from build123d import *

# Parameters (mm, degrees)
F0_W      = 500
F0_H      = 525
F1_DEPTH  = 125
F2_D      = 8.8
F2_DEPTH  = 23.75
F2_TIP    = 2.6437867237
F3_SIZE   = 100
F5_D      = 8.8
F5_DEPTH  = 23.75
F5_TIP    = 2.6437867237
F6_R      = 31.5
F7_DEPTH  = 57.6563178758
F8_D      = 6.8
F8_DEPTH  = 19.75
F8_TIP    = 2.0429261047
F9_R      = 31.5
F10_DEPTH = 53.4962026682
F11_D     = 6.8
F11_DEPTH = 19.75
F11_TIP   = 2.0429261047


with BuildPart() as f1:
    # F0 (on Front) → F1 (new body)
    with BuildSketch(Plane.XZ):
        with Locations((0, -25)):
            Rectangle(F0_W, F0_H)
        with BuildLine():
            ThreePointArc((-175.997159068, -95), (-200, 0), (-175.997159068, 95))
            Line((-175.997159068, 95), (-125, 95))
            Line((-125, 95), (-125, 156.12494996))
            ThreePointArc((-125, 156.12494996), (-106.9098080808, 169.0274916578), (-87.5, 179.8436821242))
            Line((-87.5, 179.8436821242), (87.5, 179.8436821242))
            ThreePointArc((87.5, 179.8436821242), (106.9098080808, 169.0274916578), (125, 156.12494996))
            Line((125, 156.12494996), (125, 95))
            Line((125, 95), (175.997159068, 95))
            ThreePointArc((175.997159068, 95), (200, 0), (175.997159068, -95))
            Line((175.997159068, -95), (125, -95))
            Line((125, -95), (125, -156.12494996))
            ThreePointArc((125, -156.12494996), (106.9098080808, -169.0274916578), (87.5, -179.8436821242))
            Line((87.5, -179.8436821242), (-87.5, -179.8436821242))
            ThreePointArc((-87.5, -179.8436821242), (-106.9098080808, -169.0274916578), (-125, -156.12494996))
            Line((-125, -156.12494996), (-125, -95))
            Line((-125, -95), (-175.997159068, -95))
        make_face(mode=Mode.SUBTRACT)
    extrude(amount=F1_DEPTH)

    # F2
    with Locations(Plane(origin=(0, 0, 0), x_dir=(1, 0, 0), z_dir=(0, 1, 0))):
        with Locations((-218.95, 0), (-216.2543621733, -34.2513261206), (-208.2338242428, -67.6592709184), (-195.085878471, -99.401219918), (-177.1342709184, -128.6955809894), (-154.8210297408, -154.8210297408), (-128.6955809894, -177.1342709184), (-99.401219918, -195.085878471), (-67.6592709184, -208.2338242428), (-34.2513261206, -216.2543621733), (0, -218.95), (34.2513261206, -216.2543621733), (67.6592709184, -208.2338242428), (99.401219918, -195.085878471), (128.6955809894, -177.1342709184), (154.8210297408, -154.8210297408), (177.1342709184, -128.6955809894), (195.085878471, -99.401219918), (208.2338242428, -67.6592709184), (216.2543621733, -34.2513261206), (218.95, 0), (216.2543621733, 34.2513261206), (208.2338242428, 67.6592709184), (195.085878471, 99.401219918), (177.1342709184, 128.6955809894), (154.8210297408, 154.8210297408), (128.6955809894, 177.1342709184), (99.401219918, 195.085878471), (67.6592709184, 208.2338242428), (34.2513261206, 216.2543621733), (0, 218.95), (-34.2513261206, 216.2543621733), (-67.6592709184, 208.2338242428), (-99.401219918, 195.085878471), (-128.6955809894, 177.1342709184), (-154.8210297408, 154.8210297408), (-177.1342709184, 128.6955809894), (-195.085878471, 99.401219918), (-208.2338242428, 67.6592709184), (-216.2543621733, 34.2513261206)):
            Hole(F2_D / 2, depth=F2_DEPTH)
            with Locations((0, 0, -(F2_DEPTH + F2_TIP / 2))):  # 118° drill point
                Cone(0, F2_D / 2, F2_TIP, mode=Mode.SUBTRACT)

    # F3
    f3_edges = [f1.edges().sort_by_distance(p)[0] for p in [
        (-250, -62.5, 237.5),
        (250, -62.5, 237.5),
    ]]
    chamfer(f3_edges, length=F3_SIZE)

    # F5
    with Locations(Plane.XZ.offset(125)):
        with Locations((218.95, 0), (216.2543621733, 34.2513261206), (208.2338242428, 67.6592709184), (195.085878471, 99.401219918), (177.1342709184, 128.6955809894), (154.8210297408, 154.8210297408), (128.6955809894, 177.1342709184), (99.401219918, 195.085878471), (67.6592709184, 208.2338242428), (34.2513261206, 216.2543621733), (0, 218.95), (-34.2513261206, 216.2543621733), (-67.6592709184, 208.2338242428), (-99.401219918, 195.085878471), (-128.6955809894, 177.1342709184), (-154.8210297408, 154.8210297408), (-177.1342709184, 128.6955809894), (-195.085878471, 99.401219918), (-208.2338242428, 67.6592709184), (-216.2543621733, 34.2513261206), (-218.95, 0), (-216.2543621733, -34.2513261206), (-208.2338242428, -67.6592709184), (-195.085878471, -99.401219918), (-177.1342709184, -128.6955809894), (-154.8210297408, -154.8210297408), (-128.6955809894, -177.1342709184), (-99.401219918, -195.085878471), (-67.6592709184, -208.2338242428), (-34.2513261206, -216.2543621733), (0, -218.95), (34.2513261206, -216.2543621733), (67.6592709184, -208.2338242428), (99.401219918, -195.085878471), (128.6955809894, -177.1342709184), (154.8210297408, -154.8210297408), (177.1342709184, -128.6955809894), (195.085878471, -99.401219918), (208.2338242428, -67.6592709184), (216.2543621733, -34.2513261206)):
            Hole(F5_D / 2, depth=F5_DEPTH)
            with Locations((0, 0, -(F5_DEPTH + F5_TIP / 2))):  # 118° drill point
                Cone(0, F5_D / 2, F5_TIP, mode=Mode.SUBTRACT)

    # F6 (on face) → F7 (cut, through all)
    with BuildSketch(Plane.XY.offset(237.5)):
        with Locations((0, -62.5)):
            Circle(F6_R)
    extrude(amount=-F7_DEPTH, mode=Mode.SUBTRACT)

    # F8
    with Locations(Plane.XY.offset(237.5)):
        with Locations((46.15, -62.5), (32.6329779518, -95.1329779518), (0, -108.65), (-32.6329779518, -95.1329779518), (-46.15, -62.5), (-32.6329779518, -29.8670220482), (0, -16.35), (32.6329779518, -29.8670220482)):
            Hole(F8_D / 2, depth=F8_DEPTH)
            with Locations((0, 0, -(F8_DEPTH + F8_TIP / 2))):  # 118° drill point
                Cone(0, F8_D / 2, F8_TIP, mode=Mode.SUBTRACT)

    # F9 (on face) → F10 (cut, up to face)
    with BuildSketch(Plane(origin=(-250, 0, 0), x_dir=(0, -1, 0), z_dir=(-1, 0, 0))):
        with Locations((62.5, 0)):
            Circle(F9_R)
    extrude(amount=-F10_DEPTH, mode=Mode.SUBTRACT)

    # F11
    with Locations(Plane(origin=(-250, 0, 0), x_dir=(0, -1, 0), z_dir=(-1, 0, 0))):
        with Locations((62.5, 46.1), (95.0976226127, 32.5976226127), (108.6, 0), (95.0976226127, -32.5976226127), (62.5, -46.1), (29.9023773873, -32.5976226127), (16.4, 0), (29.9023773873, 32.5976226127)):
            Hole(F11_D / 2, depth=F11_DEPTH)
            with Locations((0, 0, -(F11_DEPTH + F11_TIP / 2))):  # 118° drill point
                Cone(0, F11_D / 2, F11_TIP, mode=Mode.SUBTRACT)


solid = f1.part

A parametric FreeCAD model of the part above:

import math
import FreeCAD as App
import Part
import Sketcher
from FreeCAD import Vector


def edges_at(feature, points):
    """Names of the edges that pass closest to the given points."""
    edges = feature.Shape.Edges
    near = lambda p: min(range(len(edges)), key=lambda i: edges[i].distToShape(Part.Vertex(*p))[0])
    return sorted({f"Edge{near(p) + 1}" for p in points})


def add_polygon(sketch, points):
    """Adds a closed chain of lines whose ends are joined by coincident constraints."""
    first, n = sketch.GeometryCount, len(points)
    for a, b in zip(points, points[1:] + points[:1]):
        sketch.addGeometry(Part.LineSegment(App.Vector(*a, 0), App.Vector(*b, 0)), False)
    for i in range(n):
        sketch.addConstraint(Sketcher.Constraint("Coincident", first + i, 2, first + (i + 1) % n, 1))

doc = App.newDocument("Part")
body = doc.addObject("PartDesign::Body", "Body")

# Sketch on XZ plane
sketch1 = body.newObject("Sketcher::SketchObject", "Sketch")
sketch1.AttachmentSupport = (doc.getObject("XZ_Plane"), [""])
sketch1.MapMode = "FlatFace"
add_polygon(sketch1, [(-250, 238), (-250, -288), (250, -288), (250, 238)])  # lines 0-3
sketch1.addGeometry(Part.LineSegment(Vector(-125, -95, 0), Vector(-176, -95, 0)), False)  # 4
sketch1.addGeometry(Part.ArcOfCircle(Part.Circle(Vector(0, 0, 0), Vector(0, 0, 1), 200), math.radians(152), math.radians(208)), False)  # 5
sketch1.addGeometry(Part.LineSegment(Vector(-176, 95, 0), Vector(-125, 95, 0)), False)  # 6
sketch1.addGeometry(Part.LineSegment(Vector(-125, 95, 0), Vector(-125, 156, 0)), False)  # 7
sketch1.addGeometry(Part.ArcOfCircle(Part.Circle(Vector(0, 0, 0), Vector(0, 0, 1), 200), math.radians(115.94), math.radians(128.68)), False)  # 8
sketch1.addGeometry(Part.LineSegment(Vector(-88, 180, 0), Vector(88, 180, 0)), False)  # 9
sketch1.addGeometry(Part.ArcOfCircle(Part.Circle(Vector(0, 0, 0), Vector(0, 0, 1), 200), math.radians(51.32), math.radians(64.06)), False)  # 10
sketch1.addGeometry(Part.LineSegment(Vector(125, 156, 0), Vector(125, 95, 0)), False)  # 11
sketch1.addGeometry(Part.LineSegment(Vector(125, 95, 0), Vector(176, 95, 0)), False)  # 12
sketch1.addGeometry(Part.ArcOfCircle(Part.Circle(Vector(0, 0, 0), Vector(0, 0, 1), 200), math.radians(-28), math.radians(28)), False)  # 13
sketch1.addGeometry(Part.LineSegment(Vector(176, -95, 0), Vector(125, -95, 0)), False)  # 14
sketch1.addGeometry(Part.LineSegment(Vector(125, -95, 0), Vector(125, -156, 0)), False)  # 15
sketch1.addGeometry(Part.ArcOfCircle(Part.Circle(Vector(0, 0, 0), Vector(0, 0, 1), 200), math.radians(-64.06), math.radians(-51.32)), False)  # 16
sketch1.addGeometry(Part.LineSegment(Vector(88, -180, 0), Vector(-88, -180, 0)), False)  # 17
sketch1.addGeometry(Part.ArcOfCircle(Part.Circle(Vector(0, 0, 0), Vector(0, 0, 1), 200), math.radians(-128.68), math.radians(-115.94)), False)  # 18
sketch1.addGeometry(Part.LineSegment(Vector(-125, -156, 0), Vector(-125, -95, 0)), False)  # 19
sketch1.addConstraint([
    Sketcher.Constraint("Coincident", 4, 2, 5, 2),
    Sketcher.Constraint("Coincident", 5, 1, 6, 1),
    Sketcher.Constraint("Coincident", 6, 2, 7, 1),
    Sketcher.Constraint("Coincident", 7, 2, 8, 2),
    Sketcher.Constraint("Coincident", 8, 1, 9, 1),
    Sketcher.Constraint("Coincident", 9, 2, 10, 2),
    Sketcher.Constraint("Coincident", 10, 1, 11, 1),
    Sketcher.Constraint("Coincident", 11, 2, 12, 1),
    Sketcher.Constraint("Coincident", 12, 2, 13, 2),
    Sketcher.Constraint("Coincident", 13, 1, 14, 1),
    Sketcher.Constraint("Coincident", 14, 2, 15, 1),
    Sketcher.Constraint("Coincident", 15, 2, 16, 2),
    Sketcher.Constraint("Coincident", 16, 1, 17, 1),
    Sketcher.Constraint("Coincident", 17, 2, 18, 2),
    Sketcher.Constraint("Coincident", 18, 1, 19, 1),
    Sketcher.Constraint("Coincident", 19, 2, 4, 1),
    Sketcher.Constraint("Vertical", 0),
    Sketcher.Constraint("Horizontal", 1),
    Sketcher.Constraint("Vertical", 2),
    Sketcher.Constraint("Horizontal", 3),
    Sketcher.Constraint("Horizontal", 4),
    Sketcher.Constraint("Horizontal", 6),
    Sketcher.Constraint("Vertical", 7),
    Sketcher.Constraint("Horizontal", 9),
    Sketcher.Constraint("Vertical", 11),
    Sketcher.Constraint("Horizontal", 12),
    Sketcher.Constraint("Horizontal", 14),
    Sketcher.Constraint("Vertical", 15),
    Sketcher.Constraint("Horizontal", 17),
    Sketcher.Constraint("Vertical", 19),
    Sketcher.Constraint("Coincident", 5, 3, -1, 1),
    Sketcher.Constraint("Coincident", 8, 3, -1, 1),
    Sketcher.Constraint("Coincident", 10, 3, -1, 1),
    Sketcher.Constraint("Coincident", 13, 3, -1, 1),
    Sketcher.Constraint("Coincident", 16, 3, -1, 1),
    Sketcher.Constraint("Coincident", 18, 3, -1, 1),
    Sketcher.Constraint("Equal", 5, 8),
    Sketcher.Constraint("Equal", 8, 10),
    Sketcher.Constraint("Equal", 10, 13),
    Sketcher.Constraint("Equal", 13, 16),
    Sketcher.Constraint("Equal", 16, 18),
    Sketcher.Constraint("Symmetric", 6, 2, 14, 2, -1, 1),
    Sketcher.Constraint("Symmetric", 11, 2, 19, 2, -1, 1),
    Sketcher.Constraint("Symmetric", 6, 2, 11, 2, -2),
    Sketcher.Constraint("Vertical", 9, 2, 16, 1),
    Sketcher.Constraint("Radius", 5, 200.0),
    Sketcher.Constraint("DistanceX", 1, 1, 1, 2, 500.0),
    Sketcher.Constraint("DistanceX", 9, 1, 9, 2, 175.0),
    Sketcher.Constraint("DistanceY", 0, 2, 0, 1, 525.0),
    Sketcher.Constraint("DistanceX", 0, 2, -1, 1, 250.0),
    Sketcher.Constraint("DistanceY", 4, 2, -1, 1, 95.0),
    Sketcher.Constraint("DistanceX", 6, 2, -1, 1, 125.0),
    Sketcher.Constraint("DistanceY", 0, 2, -1, 1, 287.5),
])
pad1 = body.newObject("PartDesign::Pad", "Pad")
pad1.Profile = sketch1
pad1.Length = 125

# Sketch on XZ plane
sketch2 = body.newObject("Sketcher::SketchObject", "Sketch001")
sketch2.AttachmentSupport = (doc.getObject("XZ_Plane"), [""])
sketch2.MapMode = "FlatFace"
sketch2.addGeometry([
    Part.Circle(Vector(-218.9, 0, 0), Vector(0, 0, 1), 4.4),  # 0
    Part.Circle(Vector(-216.3, 34.3, 0), Vector(0, 0, 1), 4.4),  # 1
    Part.Circle(Vector(-208.2, 67.7, 0), Vector(0, 0, 1), 4.4),  # 2
    Part.Circle(Vector(-195.1, 99.4, 0), Vector(0, 0, 1), 4.4),  # 3
    Part.Circle(Vector(-177.1, 128.7, 0), Vector(0, 0, 1), 4.4),  # 4
    Part.Circle(Vector(-154.8, 154.8, 0), Vector(0, 0, 1), 4.4),  # 5
    Part.Circle(Vector(-128.7, 177.1, 0), Vector(0, 0, 1), 4.4),  # 6
    Part.Circle(Vector(-99.4, 195.1, 0), Vector(0, 0, 1), 4.4),  # 7
    Part.Circle(Vector(-67.7, 208.2, 0), Vector(0, 0, 1), 4.4),  # 8
    Part.Circle(Vector(-34.3, 216.3, 0), Vector(0, 0, 1), 4.4),  # 9
    Part.Circle(Vector(0, 218.9, 0), Vector(0, 0, 1), 4.4),  # 10
    Part.Circle(Vector(34.3, 216.3, 0), Vector(0, 0, 1), 4.4),  # 11
    Part.Circle(Vector(67.7, 208.2, 0), Vector(0, 0, 1), 4.4),  # 12
    Part.Circle(Vector(99.4, 195.1, 0), Vector(0, 0, 1), 4.4),  # 13
    Part.Circle(Vector(128.7, 177.1, 0), Vector(0, 0, 1), 4.4),  # 14
    Part.Circle(Vector(154.8, 154.8, 0), Vector(0, 0, 1), 4.4),  # 15
    Part.Circle(Vector(177.1, 128.7, 0), Vector(0, 0, 1), 4.4),  # 16
    Part.Circle(Vector(195.1, 99.4, 0), Vector(0, 0, 1), 4.4),  # 17
    Part.Circle(Vector(208.2, 67.7, 0), Vector(0, 0, 1), 4.4),  # 18
    Part.Circle(Vector(216.3, 34.3, 0), Vector(0, 0, 1), 4.4),  # 19
    Part.Circle(Vector(218.9, 0, 0), Vector(0, 0, 1), 4.4),  # 20
    Part.Circle(Vector(216.3, -34.3, 0), Vector(0, 0, 1), 4.4),  # 21
    Part.Circle(Vector(208.2, -67.7, 0), Vector(0, 0, 1), 4.4),  # 22
    Part.Circle(Vector(195.1, -99.4, 0), Vector(0, 0, 1), 4.4),  # 23
    Part.Circle(Vector(177.1, -128.7, 0), Vector(0, 0, 1), 4.4),  # 24
    Part.Circle(Vector(154.8, -154.8, 0), Vector(0, 0, 1), 4.4),  # 25
    Part.Circle(Vector(128.7, -177.1, 0), Vector(0, 0, 1), 4.4),  # 26
    Part.Circle(Vector(99.4, -195.1, 0), Vector(0, 0, 1), 4.4),  # 27
    Part.Circle(Vector(67.7, -208.2, 0), Vector(0, 0, 1), 4.4),  # 28
    Part.Circle(Vector(34.3, -216.3, 0), Vector(0, 0, 1), 4.4),  # 29
    Part.Circle(Vector(0, -218.9, 0), Vector(0, 0, 1), 4.4),  # 30
    Part.Circle(Vector(-34.3, -216.3, 0), Vector(0, 0, 1), 4.4),  # 31
    Part.Circle(Vector(-67.7, -208.2, 0), Vector(0, 0, 1), 4.4),  # 32
    Part.Circle(Vector(-99.4, -195.1, 0), Vector(0, 0, 1), 4.4),  # 33
    Part.Circle(Vector(-128.7, -177.1, 0), Vector(0, 0, 1), 4.4),  # 34
    Part.Circle(Vector(-154.8, -154.8, 0), Vector(0, 0, 1), 4.4),  # 35
    Part.Circle(Vector(-177.1, -128.7, 0), Vector(0, 0, 1), 4.4),  # 36
    Part.Circle(Vector(-195.1, -99.4, 0), Vector(0, 0, 1), 4.4),  # 37
    Part.Circle(Vector(-208.2, -67.7, 0), Vector(0, 0, 1), 4.4),  # 38
    Part.Circle(Vector(-216.3, -34.3, 0), Vector(0, 0, 1), 4.4),  # 39
], False)
sketch2.addConstraint([
    Sketcher.Constraint("Equal", 0, 1),
    Sketcher.Constraint("Equal", 1, 2),
    Sketcher.Constraint("Equal", 2, 3),
    Sketcher.Constraint("Equal", 3, 4),
    Sketcher.Constraint("Equal", 4, 5),
    Sketcher.Constraint("Equal", 5, 6),
    Sketcher.Constraint("Equal", 6, 7),
    Sketcher.Constraint("Equal", 7, 8),
    Sketcher.Constraint("Equal", 8, 9),
    Sketcher.Constraint("Equal", 9, 10),
    Sketcher.Constraint("Equal", 10, 11),
    Sketcher.Constraint("Equal", 11, 12),
    Sketcher.Constraint("Equal", 12, 13),
    Sketcher.Constraint("Equal", 13, 14),
    Sketcher.Constraint("Equal", 14, 15),
    Sketcher.Constraint("Equal", 15, 16),
    Sketcher.Constraint("Equal", 16, 17),
    Sketcher.Constraint("Equal", 17, 18),
    Sketcher.Constraint("Equal", 18, 19),
    Sketcher.Constraint("Equal", 19, 20),
    Sketcher.Constraint("Equal", 20, 21),
    Sketcher.Constraint("Equal", 21, 22),
    Sketcher.Constraint("Equal", 22, 23),
    Sketcher.Constraint("Equal", 23, 24),
    Sketcher.Constraint("Equal", 24, 25),
    Sketcher.Constraint("Equal", 25, 26),
    Sketcher.Constraint("Equal", 26, 27),
    Sketcher.Constraint("Equal", 27, 28),
    Sketcher.Constraint("Equal", 28, 29),
    Sketcher.Constraint("Equal", 29, 30),
    Sketcher.Constraint("Equal", 30, 31),
    Sketcher.Constraint("Equal", 31, 32),
    Sketcher.Constraint("Equal", 32, 33),
    Sketcher.Constraint("Equal", 33, 34),
    Sketcher.Constraint("Equal", 34, 35),
    Sketcher.Constraint("Equal", 35, 36),
    Sketcher.Constraint("Equal", 36, 37),
    Sketcher.Constraint("Equal", 37, 38),
    Sketcher.Constraint("Equal", 38, 39),
    Sketcher.Constraint("Symmetric", 0, 3, 20, 3, -1, 1),
    Sketcher.Constraint("Symmetric", 1, 3, 21, 3, -1, 1),
    Sketcher.Constraint("Symmetric", 2, 3, 22, 3, -1, 1),
    Sketcher.Constraint("Symmetric", 3, 3, 23, 3, -1, 1),
    Sketcher.Constraint("Symmetric", 4, 3, 24, 3, -1, 1),
    Sketcher.Constraint("Symmetric", 5, 3, 25, 3, -1, 1),
    Sketcher.Constraint("Symmetric", 6, 3, 26, 3, -1, 1),
    Sketcher.Constraint("Symmetric", 7, 3, 27, 3, -1, 1),
    Sketcher.Constraint("Symmetric", 8, 3, 28, 3, -1, 1),
    Sketcher.Constraint("Symmetric", 9, 3, 29, 3, -1, 1),
    Sketcher.Constraint("Symmetric", 10, 3, 30, 3, -1, 1),
    Sketcher.Constraint("Symmetric", 11, 3, 31, 3, -1, 1),
    Sketcher.Constraint("Symmetric", 12, 3, 32, 3, -1, 1),
    Sketcher.Constraint("Symmetric", 13, 3, 33, 3, -1, 1),
    Sketcher.Constraint("Symmetric", 14, 3, 34, 3, -1, 1),
    Sketcher.Constraint("Symmetric", 15, 3, 35, 3, -1, 1),
    Sketcher.Constraint("Symmetric", 16, 3, 36, 3, -1, 1),
    Sketcher.Constraint("Symmetric", 17, 3, 37, 3, -1, 1),
    Sketcher.Constraint("Symmetric", 18, 3, 38, 3, -1, 1),
    Sketcher.Constraint("Symmetric", 19, 3, 39, 3, -1, 1),
    Sketcher.Constraint("Symmetric", 9, 3, 11, 3, -2),
    Sketcher.Constraint("Symmetric", 8, 3, 12, 3, -2),
    Sketcher.Constraint("Symmetric", 7, 3, 13, 3, -2),
    Sketcher.Constraint("Symmetric", 6, 3, 14, 3, -2),
    Sketcher.Constraint("Symmetric", 5, 3, 15, 3, -2),
    Sketcher.Constraint("Symmetric", 4, 3, 16, 3, -2),
    Sketcher.Constraint("Symmetric", 3, 3, 17, 3, -2),
    Sketcher.Constraint("Symmetric", 2, 3, 18, 3, -2),
    Sketcher.Constraint("Symmetric", 1, 3, 19, 3, -2),
    Sketcher.Constraint("PointOnObject", 0, 3, -1),
    Sketcher.Constraint("PointOnObject", 10, 3, -2),
    Sketcher.Constraint("Diameter", 0, 8.8),
    Sketcher.Constraint("DistanceX", 0, 3, -1, 1, 218.95),
    Sketcher.Constraint("DistanceY", -1, 1, 10, 3, 218.95),
    Sketcher.Constraint("DistanceY", 2, 3, 6, 3, 109.475),
    Sketcher.Constraint("DistanceX", 4, 3, 8, 3, 109.475),
    Sketcher.Constraint("DistanceY", -1, 1, 2, 3, 67.659271),
    Sketcher.Constraint("DistanceX", 3, 3, -1, 1, 195.085878),
    Sketcher.Constraint("DistanceY", -1, 1, 3, 3, 99.40122),
    Sketcher.Constraint("DistanceX", 4, 3, -1, 1, 177.134271),
    Sketcher.Constraint("DistanceY", -1, 1, 4, 3, 128.695581),
    Sketcher.Constraint("DistanceX", 5, 3, -1, 1, 154.82103),
    Sketcher.Constraint("DistanceY", -1, 1, 5, 3, 154.82103),
    Sketcher.Constraint("DistanceX", 6, 3, -1, 1, 128.695581),
    Sketcher.Constraint("DistanceX", 7, 3, -1, 1, 99.40122),
    Sketcher.Constraint("DistanceY", -1, 1, 7, 3, 195.085878),
    Sketcher.Constraint("DistanceX", 1, 3, 4, 3, 39.120091),
    Sketcher.Constraint("DistanceY", 6, 3, 9, 3, 39.120091),
    Sketcher.Constraint("DistanceY", -1, 1, 1, 3, 34.251326),
    Sketcher.Constraint("DistanceX", 2, 3, -1, 1, 208.233824),
    Sketcher.Constraint("DistanceY", -1, 1, 8, 3, 208.233824),
    Sketcher.Constraint("DistanceX", 9, 3, -1, 1, 34.251326),
])
doc.recompute()
hole = body.newObject("PartDesign::Hole", "Hole")
hole.Profile = sketch2
hole.ThreadType = "None"
hole.Diameter = 8.8
hole.DepthType = "Dimension"
hole.Depth = 23.75
hole.DrillPoint = "Angled"
hole.DrillPointAngle = 118
hole.Reversed = True
doc.recompute()

chamfer = body.newObject("PartDesign::Chamfer", "Chamfer")
chamfer.Base = (hole, edges_at(hole, [(-250, -62.5, 237.5), (250, -62.5, 237.5)]))
chamfer.Size = 100

# Sketch on XZ plane
sketch3 = body.newObject("Sketcher::SketchObject", "Sketch002")
sketch3.AttachmentSupport = (doc.getObject("XZ_Plane"), [""])
sketch3.MapMode = "FlatFace"
sketch3.AttachmentOffset = App.Placement(Vector(0, 0, 125), App.Rotation())
sketch3.addGeometry([
    Part.Circle(Vector(218.9, 0, 0), Vector(0, 0, 1), 4.4),  # 0
    Part.Circle(Vector(216.3, 34.3, 0), Vector(0, 0, 1), 4.4),  # 1
    Part.Circle(Vector(208.2, 67.7, 0), Vector(0, 0, 1), 4.4),  # 2
    Part.Circle(Vector(195.1, 99.4, 0), Vector(0, 0, 1), 4.4),  # 3
    Part.Circle(Vector(177.1, 128.7, 0), Vector(0, 0, 1), 4.4),  # 4
    Part.Circle(Vector(154.8, 154.8, 0), Vector(0, 0, 1), 4.4),  # 5
    Part.Circle(Vector(128.7, 177.1, 0), Vector(0, 0, 1), 4.4),  # 6
    Part.Circle(Vector(99.4, 195.1, 0), Vector(0, 0, 1), 4.4),  # 7
    Part.Circle(Vector(67.7, 208.2, 0), Vector(0, 0, 1), 4.4),  # 8
    Part.Circle(Vector(34.3, 216.3, 0), Vector(0, 0, 1), 4.4),  # 9
    Part.Circle(Vector(0, 218.9, 0), Vector(0, 0, 1), 4.4),  # 10
    Part.Circle(Vector(-34.3, 216.3, 0), Vector(0, 0, 1), 4.4),  # 11
    Part.Circle(Vector(-67.7, 208.2, 0), Vector(0, 0, 1), 4.4),  # 12
    Part.Circle(Vector(-99.4, 195.1, 0), Vector(0, 0, 1), 4.4),  # 13
    Part.Circle(Vector(-128.7, 177.1, 0), Vector(0, 0, 1), 4.4),  # 14
    Part.Circle(Vector(-154.8, 154.8, 0), Vector(0, 0, 1), 4.4),  # 15
    Part.Circle(Vector(-177.1, 128.7, 0), Vector(0, 0, 1), 4.4),  # 16
    Part.Circle(Vector(-195.1, 99.4, 0), Vector(0, 0, 1), 4.4),  # 17
    Part.Circle(Vector(-208.2, 67.7, 0), Vector(0, 0, 1), 4.4),  # 18
    Part.Circle(Vector(-216.3, 34.3, 0), Vector(0, 0, 1), 4.4),  # 19
    Part.Circle(Vector(-218.9, 0, 0), Vector(0, 0, 1), 4.4),  # 20
    Part.Circle(Vector(-216.3, -34.3, 0), Vector(0, 0, 1), 4.4),  # 21
    Part.Circle(Vector(-208.2, -67.7, 0), Vector(0, 0, 1), 4.4),  # 22
    Part.Circle(Vector(-195.1, -99.4, 0), Vector(0, 0, 1), 4.4),  # 23
    Part.Circle(Vector(-177.1, -128.7, 0), Vector(0, 0, 1), 4.4),  # 24
    Part.Circle(Vector(-154.8, -154.8, 0), Vector(0, 0, 1), 4.4),  # 25
    Part.Circle(Vector(-128.7, -177.1, 0), Vector(0, 0, 1), 4.4),  # 26
    Part.Circle(Vector(-99.4, -195.1, 0), Vector(0, 0, 1), 4.4),  # 27
    Part.Circle(Vector(-67.7, -208.2, 0), Vector(0, 0, 1), 4.4),  # 28
    Part.Circle(Vector(-34.3, -216.3, 0), Vector(0, 0, 1), 4.4),  # 29
    Part.Circle(Vector(0, -218.9, 0), Vector(0, 0, 1), 4.4),  # 30
    Part.Circle(Vector(34.3, -216.3, 0), Vector(0, 0, 1), 4.4),  # 31
    Part.Circle(Vector(67.7, -208.2, 0), Vector(0, 0, 1), 4.4),  # 32
    Part.Circle(Vector(99.4, -195.1, 0), Vector(0, 0, 1), 4.4),  # 33
    Part.Circle(Vector(128.7, -177.1, 0), Vector(0, 0, 1), 4.4),  # 34
    Part.Circle(Vector(154.8, -154.8, 0), Vector(0, 0, 1), 4.4),  # 35
    Part.Circle(Vector(177.1, -128.7, 0), Vector(0, 0, 1), 4.4),  # 36
    Part.Circle(Vector(195.1, -99.4, 0), Vector(0, 0, 1), 4.4),  # 37
    Part.Circle(Vector(208.2, -67.7, 0), Vector(0, 0, 1), 4.4),  # 38
    Part.Circle(Vector(216.3, -34.3, 0), Vector(0, 0, 1), 4.4),  # 39
], False)
sketch3.addConstraint([
    Sketcher.Constraint("Equal", 0, 1),
    Sketcher.Constraint("Equal", 1, 2),
    Sketcher.Constraint("Equal", 2, 3),
    Sketcher.Constraint("Equal", 3, 4),
    Sketcher.Constraint("Equal", 4, 5),
    Sketcher.Constraint("Equal", 5, 6),
    Sketcher.Constraint("Equal", 6, 7),
    Sketcher.Constraint("Equal", 7, 8),
    Sketcher.Constraint("Equal", 8, 9),
    Sketcher.Constraint("Equal", 9, 10),
    Sketcher.Constraint("Equal", 10, 11),
    Sketcher.Constraint("Equal", 11, 12),
    Sketcher.Constraint("Equal", 12, 13),
    Sketcher.Constraint("Equal", 13, 14),
    Sketcher.Constraint("Equal", 14, 15),
    Sketcher.Constraint("Equal", 15, 16),
    Sketcher.Constraint("Equal", 16, 17),
    Sketcher.Constraint("Equal", 17, 18),
    Sketcher.Constraint("Equal", 18, 19),
    Sketcher.Constraint("Equal", 19, 20),
    Sketcher.Constraint("Equal", 20, 21),
    Sketcher.Constraint("Equal", 21, 22),
    Sketcher.Constraint("Equal", 22, 23),
    Sketcher.Constraint("Equal", 23, 24),
    Sketcher.Constraint("Equal", 24, 25),
    Sketcher.Constraint("Equal", 25, 26),
    Sketcher.Constraint("Equal", 26, 27),
    Sketcher.Constraint("Equal", 27, 28),
    Sketcher.Constraint("Equal", 28, 29),
    Sketcher.Constraint("Equal", 29, 30),
    Sketcher.Constraint("Equal", 30, 31),
    Sketcher.Constraint("Equal", 31, 32),
    Sketcher.Constraint("Equal", 32, 33),
    Sketcher.Constraint("Equal", 33, 34),
    Sketcher.Constraint("Equal", 34, 35),
    Sketcher.Constraint("Equal", 35, 36),
    Sketcher.Constraint("Equal", 36, 37),
    Sketcher.Constraint("Equal", 37, 38),
    Sketcher.Constraint("Equal", 38, 39),
    Sketcher.Constraint("Symmetric", 0, 3, 20, 3, -1, 1),
    Sketcher.Constraint("Symmetric", 1, 3, 21, 3, -1, 1),
    Sketcher.Constraint("Symmetric", 2, 3, 22, 3, -1, 1),
    Sketcher.Constraint("Symmetric", 3, 3, 23, 3, -1, 1),
    Sketcher.Constraint("Symmetric", 4, 3, 24, 3, -1, 1),
    Sketcher.Constraint("Symmetric", 5, 3, 25, 3, -1, 1),
    Sketcher.Constraint("Symmetric", 6, 3, 26, 3, -1, 1),
    Sketcher.Constraint("Symmetric", 7, 3, 27, 3, -1, 1),
    Sketcher.Constraint("Symmetric", 8, 3, 28, 3, -1, 1),
    Sketcher.Constraint("Symmetric", 9, 3, 29, 3, -1, 1),
    Sketcher.Constraint("Symmetric", 10, 3, 30, 3, -1, 1),
    Sketcher.Constraint("Symmetric", 11, 3, 31, 3, -1, 1),
    Sketcher.Constraint("Symmetric", 12, 3, 32, 3, -1, 1),
    Sketcher.Constraint("Symmetric", 13, 3, 33, 3, -1, 1),
    Sketcher.Constraint("Symmetric", 14, 3, 34, 3, -1, 1),
    Sketcher.Constraint("Symmetric", 15, 3, 35, 3, -1, 1),
    Sketcher.Constraint("Symmetric", 16, 3, 36, 3, -1, 1),
    Sketcher.Constraint("Symmetric", 17, 3, 37, 3, -1, 1),
    Sketcher.Constraint("Symmetric", 18, 3, 38, 3, -1, 1),
    Sketcher.Constraint("Symmetric", 19, 3, 39, 3, -1, 1),
    Sketcher.Constraint("Symmetric", 9, 3, 11, 3, -2),
    Sketcher.Constraint("Symmetric", 8, 3, 12, 3, -2),
    Sketcher.Constraint("Symmetric", 7, 3, 13, 3, -2),
    Sketcher.Constraint("Symmetric", 6, 3, 14, 3, -2),
    Sketcher.Constraint("Symmetric", 5, 3, 15, 3, -2),
    Sketcher.Constraint("Symmetric", 4, 3, 16, 3, -2),
    Sketcher.Constraint("Symmetric", 3, 3, 17, 3, -2),
    Sketcher.Constraint("Symmetric", 2, 3, 18, 3, -2),
    Sketcher.Constraint("Symmetric", 1, 3, 19, 3, -2),
    Sketcher.Constraint("PointOnObject", 0, 3, -1),
    Sketcher.Constraint("PointOnObject", 10, 3, -2),
    Sketcher.Constraint("Diameter", 0, 8.8),
    Sketcher.Constraint("DistanceX", -1, 1, 0, 3, 218.95),
    Sketcher.Constraint("DistanceY", -1, 1, 10, 3, 218.95),
    Sketcher.Constraint("DistanceY", 2, 3, 6, 3, 109.475),
    Sketcher.Constraint("DistanceX", 8, 3, 4, 3, 109.475),
    Sketcher.Constraint("DistanceY", -1, 1, 2, 3, 67.659271),
    Sketcher.Constraint("DistanceX", -1, 1, 3, 3, 195.085878),
    Sketcher.Constraint("DistanceY", -1, 1, 3, 3, 99.40122),
    Sketcher.Constraint("DistanceX", -1, 1, 4, 3, 177.134271),
    Sketcher.Constraint("DistanceY", -1, 1, 4, 3, 128.695581),
    Sketcher.Constraint("DistanceX", -1, 1, 5, 3, 154.82103),
    Sketcher.Constraint("DistanceY", -1, 1, 5, 3, 154.82103),
    Sketcher.Constraint("DistanceX", -1, 1, 6, 3, 128.695581),
    Sketcher.Constraint("DistanceX", -1, 1, 7, 3, 99.40122),
    Sketcher.Constraint("DistanceY", -1, 1, 7, 3, 195.085878),
    Sketcher.Constraint("DistanceX", 4, 3, 1, 3, 39.120091),
    Sketcher.Constraint("DistanceY", 6, 3, 9, 3, 39.120091),
    Sketcher.Constraint("DistanceY", -1, 1, 1, 3, 34.251326),
    Sketcher.Constraint("DistanceX", -1, 1, 2, 3, 208.233824),
    Sketcher.Constraint("DistanceY", -1, 1, 8, 3, 208.233824),
    Sketcher.Constraint("DistanceX", -1, 1, 9, 3, 34.251326),
])
doc.recompute()
hole2 = body.newObject("PartDesign::Hole", "Hole001")
hole2.Profile = sketch3
hole2.ThreadType = "None"
hole2.Diameter = 8.8
hole2.DepthType = "Dimension"
hole2.Depth = 23.75
hole2.DrillPoint = "Angled"
hole2.DrillPointAngle = 118

# Sketch on XY plane
sketch4 = body.newObject("Sketcher::SketchObject", "Sketch003")
sketch4.AttachmentSupport = (doc.getObject("XY_Plane"), [""])
sketch4.MapMode = "FlatFace"
sketch4.AttachmentOffset = App.Placement(Vector(0, 0, 237.5), App.Rotation())
sketch4.addGeometry(Part.Circle(Vector(0, -62, 0), Vector(0, 0, 1), 32), False)
sketch4.addConstraint([
    Sketcher.Constraint("PointOnObject", 0, 3, -2),
    Sketcher.Constraint("Diameter", 0, 63.0),
    Sketcher.Constraint("DistanceY", 0, 3, -1, 1, 62.5),
])
pocket1 = body.newObject("PartDesign::Pocket", "Pocket")
pocket1.Profile = sketch4
pocket1.Length = 57.656318

# Sketch on XY plane
sketch5 = body.newObject("Sketcher::SketchObject", "Sketch004")
sketch5.AttachmentSupport = (doc.getObject("XY_Plane"), [""])
sketch5.MapMode = "FlatFace"
sketch5.AttachmentOffset = App.Placement(Vector(0, 0, 237.5), App.Rotation())
sketch5.addGeometry([
    Part.Circle(Vector(46.1, -62.5, 0), Vector(0, 0, 1), 3.4),  # 0
    Part.Circle(Vector(32.6, -95.1, 0), Vector(0, 0, 1), 3.4),  # 1
    Part.Circle(Vector(0, -108.7, 0), Vector(0, 0, 1), 3.4),  # 2
    Part.Circle(Vector(-32.6, -95.1, 0), Vector(0, 0, 1), 3.4),  # 3
    Part.Circle(Vector(-46.1, -62.5, 0), Vector(0, 0, 1), 3.4),  # 4
    Part.Circle(Vector(-32.6, -29.9, 0), Vector(0, 0, 1), 3.4),  # 5
    Part.Circle(Vector(0, -16.4, 0), Vector(0, 0, 1), 3.4),  # 6
    Part.Circle(Vector(32.6, -29.9, 0), Vector(0, 0, 1), 3.4),  # 7
], False)
sketch5.addConstraint([
    Sketcher.Constraint("Equal", 0, 1),
    Sketcher.Constraint("Equal", 1, 2),
    Sketcher.Constraint("Equal", 2, 3),
    Sketcher.Constraint("Equal", 3, 4),
    Sketcher.Constraint("Equal", 4, 5),
    Sketcher.Constraint("Equal", 5, 6),
    Sketcher.Constraint("Equal", 6, 7),
    Sketcher.Constraint("Symmetric", 1, 3, 3, 3, -2),
    Sketcher.Constraint("Symmetric", 0, 3, 4, 3, -2),
    Sketcher.Constraint("Symmetric", 5, 3, 7, 3, -2),
    Sketcher.Constraint("PointOnObject", 2, 3, -2),
    Sketcher.Constraint("PointOnObject", 6, 3, -2),
    Sketcher.Constraint("Vertical", 3, 3, 5, 3),
    Sketcher.Constraint("Diameter", 0, 6.8),
    Sketcher.Constraint("DistanceY", 0, 3, -1, 1, 62.5),
    Sketcher.Constraint("DistanceX", 4, 3, 0, 3, 92.3),
    Sketcher.Constraint("DistanceY", 2, 3, -1, 1, 108.65),
    Sketcher.Constraint("DistanceY", 6, 3, -1, 1, 16.35),
    Sketcher.Constraint("DistanceX", -1, 1, 1, 3, 32.632978),
    Sketcher.Constraint("DistanceY", 1, 3, -1, 1, 95.132978),
    Sketcher.Constraint("DistanceY", 5, 3, -1, 1, 29.867022),
])
doc.recompute()
hole3 = body.newObject("PartDesign::Hole", "Hole002")
hole3.Profile = sketch5
hole3.ThreadType = "None"
hole3.Diameter = 6.8
hole3.DepthType = "Dimension"
hole3.Depth = 19.75
hole3.DrillPoint = "Angled"
hole3.DrillPointAngle = 118

# Sketch on YZ plane
sketch6 = body.newObject("Sketcher::SketchObject", "Sketch005")
sketch6.AttachmentSupport = (doc.getObject("YZ_Plane"), [""])
sketch6.MapMode = "FlatFace"
sketch6.AttachmentOffset = App.Placement(Vector(0, 0, -250), App.Rotation())
sketch6.addGeometry(Part.Circle(Vector(-62, 0, 0), Vector(0, 0, 1), 32), False)
sketch6.addConstraint([
    Sketcher.Constraint("PointOnObject", 0, 3, -1),
    Sketcher.Constraint("Diameter", 0, 63.0),
    Sketcher.Constraint("DistanceX", 0, 3, -1, 1, 62.5),
])
pocket2 = body.newObject("PartDesign::Pocket", "Pocket001")
pocket2.Profile = sketch6
pocket2.Length = 53.496203
pocket2.Reversed = True

# Sketch on YZ plane
sketch7 = body.newObject("Sketcher::SketchObject", "Sketch006")
sketch7.AttachmentSupport = (doc.getObject("YZ_Plane"), [""])
sketch7.MapMode = "FlatFace"
sketch7.AttachmentOffset = App.Placement(Vector(0, 0, -250), App.Rotation())
sketch7.addGeometry([
    Part.Circle(Vector(-62.5, 46.1, 0), Vector(0, 0, 1), 3.4),  # 0
    Part.Circle(Vector(-95.1, 32.6, 0), Vector(0, 0, 1), 3.4),  # 1
    Part.Circle(Vector(-108.6, 0, 0), Vector(0, 0, 1), 3.4),  # 2
    Part.Circle(Vector(-95.1, -32.6, 0), Vector(0, 0, 1), 3.4),  # 3
    Part.Circle(Vector(-62.5, -46.1, 0), Vector(0, 0, 1), 3.4),  # 4
    Part.Circle(Vector(-29.9, -32.6, 0), Vector(0, 0, 1), 3.4),  # 5
    Part.Circle(Vector(-16.4, 0, 0), Vector(0, 0, 1), 3.4),  # 6
    Part.Circle(Vector(-29.9, 32.6, 0), Vector(0, 0, 1), 3.4),  # 7
], False)
sketch7.addConstraint([
    Sketcher.Constraint("Equal", 0, 1),
    Sketcher.Constraint("Equal", 1, 2),
    Sketcher.Constraint("Equal", 2, 3),
    Sketcher.Constraint("Equal", 3, 4),
    Sketcher.Constraint("Equal", 4, 5),
    Sketcher.Constraint("Equal", 5, 6),
    Sketcher.Constraint("Equal", 6, 7),
    Sketcher.Constraint("Symmetric", 1, 3, 3, 3, -1),
    Sketcher.Constraint("Symmetric", 0, 3, 4, 3, -1),
    Sketcher.Constraint("Symmetric", 5, 3, 7, 3, -1),
    Sketcher.Constraint("PointOnObject", 2, 3, -1),
    Sketcher.Constraint("PointOnObject", 6, 3, -1),
    Sketcher.Constraint("Horizontal", 3, 3, 5, 3),
    Sketcher.Constraint("Diameter", 0, 6.8),
    Sketcher.Constraint("DistanceX", 0, 3, -1, 1, 62.5),
    Sketcher.Constraint("DistanceY", -1, 1, 0, 3, 46.1),
    Sketcher.Constraint("DistanceX", 2, 3, -1, 1, 108.6),
    Sketcher.Constraint("DistanceX", 6, 3, -1, 1, 16.4),
    Sketcher.Constraint("DistanceX", 1, 3, -1, 1, 95.097623),
    Sketcher.Constraint("DistanceY", -1, 1, 1, 3, 32.597623),
    Sketcher.Constraint("DistanceX", 5, 3, -1, 1, 29.902377),
])
doc.recompute()
hole4 = body.newObject("PartDesign::Hole", "Hole003")
hole4.Profile = sketch7
hole4.ThreadType = "None"
hole4.Diameter = 6.8
hole4.DepthType = "Dimension"
hole4.Depth = 19.75
hole4.DrillPoint = "Angled"
hole4.DrillPointAngle = 118
hole4.Reversed = True

doc.recompute()
